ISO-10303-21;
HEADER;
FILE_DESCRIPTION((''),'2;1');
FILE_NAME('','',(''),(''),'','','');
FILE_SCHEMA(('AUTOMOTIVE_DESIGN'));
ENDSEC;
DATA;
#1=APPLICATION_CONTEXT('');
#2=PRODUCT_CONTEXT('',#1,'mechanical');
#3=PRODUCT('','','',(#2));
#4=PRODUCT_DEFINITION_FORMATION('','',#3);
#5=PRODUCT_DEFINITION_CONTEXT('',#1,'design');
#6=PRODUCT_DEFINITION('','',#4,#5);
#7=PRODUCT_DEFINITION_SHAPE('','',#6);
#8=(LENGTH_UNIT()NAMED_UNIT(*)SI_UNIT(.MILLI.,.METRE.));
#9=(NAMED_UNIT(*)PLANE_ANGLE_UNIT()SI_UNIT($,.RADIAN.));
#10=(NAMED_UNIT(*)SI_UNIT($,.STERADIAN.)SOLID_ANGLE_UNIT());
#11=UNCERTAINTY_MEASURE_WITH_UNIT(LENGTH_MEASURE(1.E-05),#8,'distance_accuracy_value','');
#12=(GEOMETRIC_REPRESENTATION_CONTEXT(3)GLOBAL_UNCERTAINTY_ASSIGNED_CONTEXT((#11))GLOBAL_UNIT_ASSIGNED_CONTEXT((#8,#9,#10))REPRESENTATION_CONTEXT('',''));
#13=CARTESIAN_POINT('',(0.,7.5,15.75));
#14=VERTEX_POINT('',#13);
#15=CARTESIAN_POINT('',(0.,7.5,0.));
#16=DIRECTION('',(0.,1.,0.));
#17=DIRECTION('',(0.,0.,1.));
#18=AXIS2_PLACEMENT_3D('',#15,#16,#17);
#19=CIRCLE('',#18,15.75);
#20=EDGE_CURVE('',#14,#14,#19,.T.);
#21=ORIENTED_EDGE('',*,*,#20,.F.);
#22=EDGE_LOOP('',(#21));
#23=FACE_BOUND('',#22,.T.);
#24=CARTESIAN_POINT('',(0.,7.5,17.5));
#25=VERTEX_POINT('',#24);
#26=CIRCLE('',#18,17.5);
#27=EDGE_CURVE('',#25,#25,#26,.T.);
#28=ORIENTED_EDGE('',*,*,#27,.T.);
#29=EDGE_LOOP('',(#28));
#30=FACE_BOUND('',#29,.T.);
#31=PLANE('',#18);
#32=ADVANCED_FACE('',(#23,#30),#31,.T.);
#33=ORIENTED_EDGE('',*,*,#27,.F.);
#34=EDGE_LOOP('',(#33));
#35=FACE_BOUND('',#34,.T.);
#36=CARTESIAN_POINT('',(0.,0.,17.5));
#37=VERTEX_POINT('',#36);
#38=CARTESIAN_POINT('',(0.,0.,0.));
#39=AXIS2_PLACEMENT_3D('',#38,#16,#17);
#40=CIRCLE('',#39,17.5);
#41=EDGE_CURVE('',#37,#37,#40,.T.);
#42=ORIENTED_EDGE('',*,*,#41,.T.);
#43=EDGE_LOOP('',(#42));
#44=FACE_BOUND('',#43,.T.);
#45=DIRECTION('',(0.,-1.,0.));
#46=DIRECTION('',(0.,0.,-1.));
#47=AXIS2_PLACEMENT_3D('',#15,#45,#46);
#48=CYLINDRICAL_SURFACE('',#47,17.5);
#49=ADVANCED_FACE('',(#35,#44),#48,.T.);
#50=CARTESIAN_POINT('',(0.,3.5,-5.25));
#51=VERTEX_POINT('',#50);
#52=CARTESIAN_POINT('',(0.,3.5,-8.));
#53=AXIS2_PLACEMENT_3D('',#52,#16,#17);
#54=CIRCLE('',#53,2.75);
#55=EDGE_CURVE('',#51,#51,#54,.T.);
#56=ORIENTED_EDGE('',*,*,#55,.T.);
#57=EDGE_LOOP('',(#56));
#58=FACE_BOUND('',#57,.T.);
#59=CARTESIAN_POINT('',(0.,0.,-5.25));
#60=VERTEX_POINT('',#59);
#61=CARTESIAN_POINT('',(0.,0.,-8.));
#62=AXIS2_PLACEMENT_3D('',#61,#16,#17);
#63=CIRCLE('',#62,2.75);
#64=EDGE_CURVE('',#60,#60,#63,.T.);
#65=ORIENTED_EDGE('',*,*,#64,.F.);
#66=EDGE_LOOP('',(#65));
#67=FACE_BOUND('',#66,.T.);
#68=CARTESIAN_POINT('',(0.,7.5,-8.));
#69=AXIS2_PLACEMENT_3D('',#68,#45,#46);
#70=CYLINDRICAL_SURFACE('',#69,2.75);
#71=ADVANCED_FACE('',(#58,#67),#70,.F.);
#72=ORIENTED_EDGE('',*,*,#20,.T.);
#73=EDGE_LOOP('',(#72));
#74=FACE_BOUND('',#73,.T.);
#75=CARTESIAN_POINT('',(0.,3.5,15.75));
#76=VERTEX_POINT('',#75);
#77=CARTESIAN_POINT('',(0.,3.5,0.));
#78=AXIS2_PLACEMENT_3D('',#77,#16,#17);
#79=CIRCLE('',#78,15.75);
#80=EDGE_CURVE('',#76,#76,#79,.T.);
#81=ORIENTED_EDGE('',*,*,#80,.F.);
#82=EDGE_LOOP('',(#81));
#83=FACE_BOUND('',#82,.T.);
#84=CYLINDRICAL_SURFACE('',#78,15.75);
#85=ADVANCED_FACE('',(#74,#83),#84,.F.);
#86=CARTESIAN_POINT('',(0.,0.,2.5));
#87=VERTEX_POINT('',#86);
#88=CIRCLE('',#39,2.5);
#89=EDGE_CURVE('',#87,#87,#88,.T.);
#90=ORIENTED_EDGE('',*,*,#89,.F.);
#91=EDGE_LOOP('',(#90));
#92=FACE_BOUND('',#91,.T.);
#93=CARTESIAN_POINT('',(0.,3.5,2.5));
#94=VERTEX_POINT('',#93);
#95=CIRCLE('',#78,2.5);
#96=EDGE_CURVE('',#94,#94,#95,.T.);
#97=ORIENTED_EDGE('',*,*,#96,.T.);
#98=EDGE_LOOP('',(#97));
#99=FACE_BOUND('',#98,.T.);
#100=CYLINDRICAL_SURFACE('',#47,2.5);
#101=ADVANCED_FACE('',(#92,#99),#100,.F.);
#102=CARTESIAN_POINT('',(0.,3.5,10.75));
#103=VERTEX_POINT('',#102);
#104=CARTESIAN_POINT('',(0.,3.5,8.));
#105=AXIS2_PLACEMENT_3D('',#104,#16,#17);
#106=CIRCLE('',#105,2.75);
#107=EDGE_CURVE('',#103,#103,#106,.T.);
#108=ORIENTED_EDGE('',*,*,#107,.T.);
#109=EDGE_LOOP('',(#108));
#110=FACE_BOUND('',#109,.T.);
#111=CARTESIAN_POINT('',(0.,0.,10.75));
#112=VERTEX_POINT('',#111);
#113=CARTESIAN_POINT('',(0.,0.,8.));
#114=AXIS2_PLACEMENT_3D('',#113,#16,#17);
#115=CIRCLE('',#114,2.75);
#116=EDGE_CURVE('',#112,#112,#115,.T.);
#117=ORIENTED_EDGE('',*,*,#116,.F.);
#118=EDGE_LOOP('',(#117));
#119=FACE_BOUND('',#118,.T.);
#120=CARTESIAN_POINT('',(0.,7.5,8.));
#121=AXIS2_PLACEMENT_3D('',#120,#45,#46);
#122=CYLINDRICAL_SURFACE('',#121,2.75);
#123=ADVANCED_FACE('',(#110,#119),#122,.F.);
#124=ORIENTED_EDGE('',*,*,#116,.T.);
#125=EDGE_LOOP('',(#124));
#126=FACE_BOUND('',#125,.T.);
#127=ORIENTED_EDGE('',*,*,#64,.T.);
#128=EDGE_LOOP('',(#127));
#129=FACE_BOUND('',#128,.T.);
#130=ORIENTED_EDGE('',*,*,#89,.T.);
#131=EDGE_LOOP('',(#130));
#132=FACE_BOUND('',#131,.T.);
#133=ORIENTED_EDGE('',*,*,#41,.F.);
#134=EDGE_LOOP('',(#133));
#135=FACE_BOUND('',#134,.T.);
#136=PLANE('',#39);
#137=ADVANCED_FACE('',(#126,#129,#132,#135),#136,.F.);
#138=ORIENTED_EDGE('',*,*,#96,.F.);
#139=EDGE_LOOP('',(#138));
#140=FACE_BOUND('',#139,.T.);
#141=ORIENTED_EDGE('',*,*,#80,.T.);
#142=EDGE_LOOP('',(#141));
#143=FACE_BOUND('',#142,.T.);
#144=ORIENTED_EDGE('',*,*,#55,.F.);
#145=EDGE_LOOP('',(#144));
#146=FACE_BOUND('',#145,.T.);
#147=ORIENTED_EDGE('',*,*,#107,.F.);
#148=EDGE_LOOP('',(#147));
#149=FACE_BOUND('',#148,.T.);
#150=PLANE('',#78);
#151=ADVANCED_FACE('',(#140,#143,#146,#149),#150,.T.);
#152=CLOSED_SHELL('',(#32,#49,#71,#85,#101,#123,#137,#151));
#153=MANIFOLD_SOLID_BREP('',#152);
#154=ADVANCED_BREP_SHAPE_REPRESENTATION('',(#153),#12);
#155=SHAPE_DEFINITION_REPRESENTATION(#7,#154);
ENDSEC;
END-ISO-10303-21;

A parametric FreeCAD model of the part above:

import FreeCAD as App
import Part
import Sketcher

V = App.Vector

doc = App.newDocument("Part")
body = doc.addObject("PartDesign::Body", "Body")

# Sketch on XZ plane
sketch1 = body.newObject("Sketcher::SketchObject", "Sketch")
sketch1.AttachmentSupport = (doc.getObject("XZ_Plane"), [""])
sketch1.MapMode = "FlatFace"
sketch1.addGeometry([
    Part.Circle(V(0, 0, 0), V(0, 0, 1), 17.5),
    Part.Circle(V(0, 8, 0), V(0, 0, 1), 2.8),
    Part.Circle(V(0, 0, 0), V(0, 0, 1), 2.5),
    Part.Circle(V(0, -8, 0), V(0, 0, 1), 2.8),
], False)
sketch1.addConstraint([
    Sketcher.Constraint("Coincident", 0, 3, -1, 1),
    Sketcher.Constraint("Coincident", 2, 3, -1, 1),
    Sketcher.Constraint("Equal", 1, 3),
    Sketcher.Constraint("Symmetric", 1, 3, 3, 3, -1, 1),
    Sketcher.Constraint("PointOnObject", 1, 3, -2),
    Sketcher.Constraint("Diameter", 0, 35.0),
    Sketcher.Constraint("Diameter", 2, 5.0),
    Sketcher.Constraint("Diameter", 1, 5.5),
    Sketcher.Constraint("DistanceY", -1, 1, 1, 3, 8.0),
])
pad1 = body.newObject("PartDesign::Pad", "Pad")
pad1.Profile = sketch1
pad1.Length = 7.5
pad1.Reversed = True

# Sketch on XZ plane
sketch2 = body.newObject("Sketcher::SketchObject", "Sketch001")
sketch2.AttachmentSupport = (doc.getObject("XZ_Plane"), [""])
sketch2.MapMode = "FlatFace"
sketch2.AttachmentOffset = App.Placement(V(0, 0, -7.5), App.Rotation())
sketch2.addGeometry(Part.Circle(V(0, 0, 0), V(0, 0, 1), 16), False)
sketch2.addConstraint([
    Sketcher.Constraint("Coincident", 0, 3, -1, 1),
    Sketcher.Constraint("Diameter", 0, 31.5),
])
pocket1 = body.newObject("PartDesign::Pocket", "Pocket")
pocket1.Profile = sketch2
pocket1.Length = 4
pocket1.Reversed = True

doc.recompute()
